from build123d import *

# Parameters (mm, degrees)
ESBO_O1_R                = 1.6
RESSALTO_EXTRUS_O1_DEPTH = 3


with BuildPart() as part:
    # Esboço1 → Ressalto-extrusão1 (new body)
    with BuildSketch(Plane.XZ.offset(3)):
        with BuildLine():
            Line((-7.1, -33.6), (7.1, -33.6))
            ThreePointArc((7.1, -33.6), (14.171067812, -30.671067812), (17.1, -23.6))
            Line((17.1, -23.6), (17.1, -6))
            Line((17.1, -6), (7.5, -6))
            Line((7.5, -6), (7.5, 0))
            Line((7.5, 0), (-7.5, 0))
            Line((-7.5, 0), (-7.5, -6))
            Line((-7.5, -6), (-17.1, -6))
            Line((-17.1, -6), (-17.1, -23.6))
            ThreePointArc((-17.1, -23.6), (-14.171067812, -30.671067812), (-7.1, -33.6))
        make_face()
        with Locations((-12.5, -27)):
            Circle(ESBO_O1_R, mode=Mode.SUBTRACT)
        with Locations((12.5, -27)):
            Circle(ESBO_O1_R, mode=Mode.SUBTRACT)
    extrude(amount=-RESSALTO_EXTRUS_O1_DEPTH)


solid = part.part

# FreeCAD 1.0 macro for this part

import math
import FreeCAD as App
import Part
import Sketcher

V = App.Vector

doc = App.newDocument("Part")
params = doc.addObject("Spreadsheet::Sheet", "Params")
for row, (alias, value) in enumerate([
    ("sketch1_radius", "10 mm"),
    ("sketch1_diameter", "3.2 mm"),
    ("sketch1_width", "15 mm"),
    ("sketch1_height", "6 mm"),
    ("sketch1_width2", "14.2 mm"),
    ("pad1_length", "3 mm"),
], start=1):
    params.set(f"A{row}", alias)
    params.set(f"B{row}", "=" + value)
    params.setAlias(f"B{row}", alias)

body = doc.addObject("PartDesign::Body", "Body")

# Sketch on XZ plane
sketch1 = body.newObject("Sketcher::SketchObject", "Sketch")
sketch1.AttachmentSupport = (doc.getObject("XZ_Plane"), [""])
sketch1.MapMode = "FlatFace"
sketch1.AttachmentOffset = App.Placement(V(0, 0, 3), App.Rotation())
sketch1.addGeometry(Part.LineSegment(V(-7.1, -33.6, 0), V(7.1, -33.6, 0)), False)
sketch1.addGeometry(Part.ArcOfCircle(Part.Circle(V(7.1, -23.6, 0), V(0, 0, 1), 10), math.radians(-90), math.radians(0)), False)
sketch1.addGeometry(Part.LineSegment(V(17.1, -23.6, 0), V(17.1, -6, 0)), False)
sketch1.addGeometry(Part.LineSegment(V(17.1, -6, 0), V(7.5, -6, 0)), False)
sketch1.addGeometry(Part.LineSegment(V(7.5, -6, 0), V(7.5, 0, 0)), False)
sketch1.addGeometry(Part.LineSegment(V(7.5, 0, 0), V(-7.5, 0, 0)), False)
sketch1.addGeometry(Part.LineSegment(V(-7.5, 0, 0), V(-7.5, -6, 0)), False)
sketch1.addGeometry(Part.LineSegment(V(-7.5, -6, 0), V(-17.1, -6, 0)), False)
sketch1.addGeometry(Part.LineSegment(V(-17.1, -6, 0), V(-17.1, -23.6, 0)), False)
sketch1.addGeometry(Part.ArcOfCircle(Part.Circle(V(-7.1, -23.6, 0), V(0, 0, 1), 10), math.radians(180), math.radians(270)), False)
sketch1.addGeometry(Part.Circle(V(-12.5, -27, 0), V(0, 0, 1), 1.6), False)
sketch1.addGeometry(Part.Circle(V(12.5, -27, 0), V(0, 0, 1), 1.6), False)
sketch1.addConstraint(Sketcher.Constraint("Tangent", 0, 2, 1, 1))
sketch1.addConstraint(Sketcher.Constraint("Tangent", 1, 2, 2, 1))
sketch1.addConstraint(Sketcher.Constraint("Coincident", 2, 2, 3, 1))
sketch1.addConstraint(Sketcher.Constraint("Coincident", 3, 2, 4, 1))
sketch1.addConstraint(Sketcher.Constraint("Coincident", 4, 2, 5, 1))
sketch1.addConstraint(Sketcher.Constraint("Coincident", 5, 2, 6, 1))
sketch1.addConstraint(Sketcher.Constraint("Coincident", 6, 2, 7, 1))
sketch1.addConstraint(Sketcher.Constraint("Coincident", 7, 2, 8, 1))
sketch1.addConstraint(Sketcher.Constraint("Tangent", 8, 2, 9, 1))
sketch1.addConstraint(Sketcher.Constraint("Tangent", 9, 2, 0, 1))
sketch1.addConstraint(Sketcher.Constraint("Horizontal", 0))
sketch1.addConstraint(Sketcher.Constraint("Vertical", 2))
sketch1.addConstraint(Sketcher.Constraint("Horizontal", 3))
sketch1.addConstraint(Sketcher.Constraint("Vertical", 4))
sketch1.addConstraint(Sketcher.Constraint("Horizontal", 5))
sketch1.addConstraint(Sketcher.Constraint("Vertical", 6))
sketch1.addConstraint(Sketcher.Constraint("Horizontal", 7))
sketch1.addConstraint(Sketcher.Constraint("Vertical", 8))
sketch1.addConstraint(Sketcher.Constraint("Equal", 1, 9))
sketch1.addConstraint(Sketcher.Constraint("Equal", 10, 11))
sketch1.addConstraint(Sketcher.Constraint("Symmetric", 4, 2, 5, 2, -1, 1))
sketch1.addConstraint(Sketcher.Constraint("Symmetric", 10, 3, 11, 3, -2))
sketch1.addConstraint(Sketcher.Constraint("Symmetric", 2, 2, 7, 2, -2))
sketch1.addConstraint(Sketcher.Constraint("Radius", 1, 10.0))
sketch1.addConstraint(Sketcher.Constraint("Diameter", 10, 3.2))
sketch1.addConstraint(Sketcher.Constraint("DistanceX", 5, 2, 5, 1, 15.0))
sketch1.addConstraint(Sketcher.Constraint("DistanceY", 4, 1, 4, 2, 6.0))
sketch1.addConstraint(Sketcher.Constraint("DistanceX", 0, 1, 0, 2, 14.2))
sketch1.addConstraint(Sketcher.Constraint("DistanceY", 2, 1, 2, 2, 17.6))
sketch1.addConstraint(Sketcher.Constraint("DistanceY", 10, 3, -1, 1, 27.0))
sketch1.addConstraint(Sketcher.Constraint("DistanceX", 10, 3, 11, 3, 25.0))
sketch1.setExpression("Constraints[23]", "Params.sketch1_radius")
sketch1.setExpression("Constraints[24]", "Params.sketch1_diameter")
sketch1.setExpression("Constraints[25]", "Params.sketch1_width")
sketch1.setExpression("Constraints[26]", "Params.sketch1_height")
sketch1.setExpression("Constraints[27]", "Params.sketch1_width2")
pad1 = body.newObject("PartDesign::Pad", "Pad")
pad1.Profile = sketch1
pad1.setExpression("Length", "Params.pad1_length")
pad1.Reversed = True

doc.recompute()
